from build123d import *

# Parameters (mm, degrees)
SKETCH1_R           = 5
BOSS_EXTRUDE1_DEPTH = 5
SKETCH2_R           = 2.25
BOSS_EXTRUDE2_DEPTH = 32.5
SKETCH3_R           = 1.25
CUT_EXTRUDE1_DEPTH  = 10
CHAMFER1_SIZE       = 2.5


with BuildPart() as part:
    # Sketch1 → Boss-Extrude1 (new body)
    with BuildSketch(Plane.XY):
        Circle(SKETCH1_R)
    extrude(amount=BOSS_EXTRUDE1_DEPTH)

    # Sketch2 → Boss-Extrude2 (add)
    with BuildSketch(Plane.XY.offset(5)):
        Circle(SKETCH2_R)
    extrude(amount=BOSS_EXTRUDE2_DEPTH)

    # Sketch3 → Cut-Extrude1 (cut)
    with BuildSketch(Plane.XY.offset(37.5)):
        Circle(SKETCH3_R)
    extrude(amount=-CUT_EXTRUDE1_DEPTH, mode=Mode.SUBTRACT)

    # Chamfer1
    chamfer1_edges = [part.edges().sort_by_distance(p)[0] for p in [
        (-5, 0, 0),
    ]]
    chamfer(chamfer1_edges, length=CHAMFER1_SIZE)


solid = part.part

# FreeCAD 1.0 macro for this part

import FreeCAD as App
import Part
import Sketcher
from FreeCAD import Vector
Q = App.Units.Quantity


def edges_at(feature, points):
    """Names of the edges that pass closest to the given points."""
    edges = feature.Shape.Edges
    near = lambda p: min(range(len(edges)), key=lambda i: edges[i].distToShape(Part.Vertex(*p))[0])
    return sorted({f"Edge{near(p) + 1}" for p in points})

doc = App.newDocument("Part")
params = doc.addObject("Spreadsheet::Sheet", "Params")
for row, (alias, value) in enumerate([
    ("sketch1_diameter", "10 mm"),
    ("pad1_length", "5 mm"),
    ("sketch2_diameter", "4.5 mm"),
    ("pad2_length", "32.5 mm"),
    ("sketch3_diameter", "2.5 mm"),
    ("pocket1_length", "10 mm"),
    ("chamfer_size", "2.5 mm"),
], start=1):
    params.set(f"A{row}", alias)
    params.set(f"B{row}", "=" + value)
    params.setAlias(f"B{row}", alias)

body = doc.addObject("PartDesign::Body", "Body")

# Sketch on XY plane
sketch1 = body.newObject("Sketcher::SketchObject", "Sketch")
sketch1.AttachmentSupport = (doc.getObject("XY_Plane"), [""])
sketch1.MapMode = "FlatFace"
sketch1.addGeometry(Part.Circle(Vector(0, 0, 0), Vector(0, 0, 1), 5), False)
sketch1.addConstraint(Sketcher.Constraint("Coincident", 0, 3, -1, 1))
sketch1.addConstraint(Sketcher.Constraint("Diameter", 0, Q("10 mm")))
sketch1.setExpression("Constraints[1]", "Params.sketch1_diameter")
pad1 = body.newObject("PartDesign::Pad", "Pad")
pad1.Profile = sketch1
pad1.setExpression("Length", "Params.pad1_length")

# Sketch on XY plane
sketch2 = body.newObject("Sketcher::SketchObject", "Sketch001")
sketch2.AttachmentSupport = (doc.getObject("XY_Plane"), [""])
sketch2.MapMode = "FlatFace"
sketch2.AttachmentOffset = App.Placement(Vector(0, 0, 5), App.Rotation())
sketch2.addGeometry(Part.Circle(Vector(0, 0, 0), Vector(0, 0, 1), 2.25), False)
sketch2.addConstraint(Sketcher.Constraint("Coincident", 0, 3, -1, 1))
sketch2.addConstraint(Sketcher.Constraint("Diameter", 0, Q("4.5 mm")))
sketch2.setExpression("Constraints[1]", "Params.sketch2_diameter")
pad2 = body.newObject("PartDesign::Pad", "Pad001")
pad2.Profile = sketch2
pad2.setExpression("Length", "Params.pad2_length")

# Sketch on XY plane
sketch3 = body.newObject("Sketcher::SketchObject", "Sketch002")
sketch3.AttachmentSupport = (doc.getObject("XY_Plane"), [""])
sketch3.MapMode = "FlatFace"
sketch3.AttachmentOffset = App.Placement(Vector(0, 0, 37.5), App.Rotation())
sketch3.addGeometry(Part.Circle(Vector(0, 0, 0), Vector(0, 0, 1), 1.25), False)
sketch3.addConstraint(Sketcher.Constraint("Coincident", 0, 3, -1, 1))
sketch3.addConstraint(Sketcher.Constraint("Diameter", 0, Q("2.5 mm")))
sketch3.setExpression("Constraints[1]", "Params.sketch3_diameter")
pocket1 = body.newObject("PartDesign::Pocket", "Pocket")
pocket1.Profile = sketch3
pocket1.setExpression("Length", "Params.pocket1_length")
doc.recompute()

chamfer = body.newObject("PartDesign::Chamfer", "Chamfer")
chamfer.Base = (pocket1, edges_at(pocket1, [(-5, 0, 0)]))
chamfer.setExpression("Size", "Params.chamfer_size")

doc.recompute()
